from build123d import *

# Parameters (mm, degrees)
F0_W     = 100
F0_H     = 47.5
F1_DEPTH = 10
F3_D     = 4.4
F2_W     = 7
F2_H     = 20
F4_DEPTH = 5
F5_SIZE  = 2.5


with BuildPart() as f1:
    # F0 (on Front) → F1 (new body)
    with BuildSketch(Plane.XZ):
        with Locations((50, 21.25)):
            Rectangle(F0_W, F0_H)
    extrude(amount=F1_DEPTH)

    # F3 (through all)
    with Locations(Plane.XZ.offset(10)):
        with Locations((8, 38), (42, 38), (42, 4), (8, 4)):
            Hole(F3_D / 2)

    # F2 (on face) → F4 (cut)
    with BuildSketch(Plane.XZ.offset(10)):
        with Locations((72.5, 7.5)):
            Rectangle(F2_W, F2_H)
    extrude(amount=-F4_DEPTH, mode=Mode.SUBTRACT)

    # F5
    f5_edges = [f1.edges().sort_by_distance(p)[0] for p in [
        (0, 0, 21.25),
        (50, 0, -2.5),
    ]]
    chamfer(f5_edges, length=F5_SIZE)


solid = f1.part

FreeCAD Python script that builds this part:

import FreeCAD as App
import Part
import Sketcher
Q = App.Units.Quantity


def edges_at(feature, points):
    """Names of the edges that pass closest to the given points."""
    edges = feature.Shape.Edges
    near = lambda p: min(range(len(edges)), key=lambda i: edges[i].distToShape(Part.Vertex(*p))[0])
    return sorted({f"Edge{near(p) + 1}" for p in points})


def add_polygon(sketch, points):
    """Adds a closed chain of lines whose ends are joined by coincident constraints."""
    first, n = sketch.GeometryCount, len(points)
    for a, b in zip(points, points[1:] + points[:1]):
        sketch.addGeometry(Part.LineSegment(App.Vector(*a, 0), App.Vector(*b, 0)), False)
    for i in range(n):
        sketch.addConstraint(Sketcher.Constraint("Coincident", first + i, 2, first + (i + 1) % n, 1))

doc = App.newDocument("Part")
body = doc.addObject("PartDesign::Body", "Body")

# Sketch on XZ plane
sketch1 = body.newObject("Sketcher::SketchObject", "Sketch")
sketch1.AttachmentSupport = (doc.getObject("XZ_Plane"), [""])
sketch1.MapMode = "FlatFace"
add_polygon(sketch1, [(0, 45), (0, -2.5), (100, -2.5), (100, 45)])  # lines 0-3
sketch1.addConstraint(Sketcher.Constraint("Vertical", 0))
sketch1.addConstraint(Sketcher.Constraint("Horizontal", 1))
sketch1.addConstraint(Sketcher.Constraint("Vertical", 2))
sketch1.addConstraint(Sketcher.Constraint("Horizontal", 3))
sketch1.addConstraint(Sketcher.Constraint("PointOnObject", 0, 2, -2))
sketch1.addConstraint(Sketcher.Constraint("DistanceX", 1, 1, 1, 2, Q("100 mm")))
sketch1.addConstraint(Sketcher.Constraint("DistanceY", 0, 2, 0, 1, Q("47.5 mm")))
sketch1.addConstraint(Sketcher.Constraint("DistanceY", -1, 1, 2, 2, Q("45 mm")))
pad1 = body.newObject("PartDesign::Pad", "Pad")
pad1.Profile = sketch1
pad1.Length = 10

# Sketch on XZ plane
sketch2 = body.newObject("Sketcher::SketchObject", "Sketch001")
sketch2.AttachmentSupport = (doc.getObject("XZ_Plane"), [""])
sketch2.MapMode = "FlatFace"
sketch2.AttachmentOffset = App.Placement(App.Vector(0, 0, 10), App.Rotation())
sketch2.addGeometry(Part.Circle(App.Vector(8, 38, 0), App.Vector(0, 0, 1), 2.2), False)
sketch2.addGeometry(Part.Circle(App.Vector(42, 38, 0), App.Vector(0, 0, 1), 2.2), False)
sketch2.addGeometry(Part.Circle(App.Vector(42, 4, 0), App.Vector(0, 0, 1), 2.2), False)
sketch2.addGeometry(Part.Circle(App.Vector(8, 4, 0), App.Vector(0, 0, 1), 2.2), False)
sketch2.addConstraint(Sketcher.Constraint("Equal", 0, 1))
sketch2.addConstraint(Sketcher.Constraint("Equal", 1, 2))
sketch2.addConstraint(Sketcher.Constraint("Equal", 2, 3))
sketch2.addConstraint(Sketcher.Constraint("Horizontal", 0, 3, 1, 3))
sketch2.addConstraint(Sketcher.Constraint("Horizontal", 2, 3, 3, 3))
sketch2.addConstraint(Sketcher.Constraint("Vertical", 1, 3, 2, 3))
sketch2.addConstraint(Sketcher.Constraint("Vertical", 0, 3, 3, 3))
sketch2.addConstraint(Sketcher.Constraint("Diameter", 0, Q("4.4 mm")))
sketch2.addConstraint(Sketcher.Constraint("DistanceX", -1, 1, 0, 3, Q("8 mm")))
sketch2.addConstraint(Sketcher.Constraint("DistanceY", -1, 1, 0, 3, Q("38 mm")))
sketch2.addConstraint(Sketcher.Constraint("DistanceX", -1, 1, 1, 3, Q("42 mm")))
sketch2.addConstraint(Sketcher.Constraint("DistanceY", -1, 1, 2, 3, Q("4 mm")))
doc.recompute()
hole = body.newObject("PartDesign::Hole", "Hole")
hole.Profile = sketch2
hole.ThreadType = "None"
hole.Diameter = 4.4
hole.DepthType = "ThroughAll"

# Sketch on XZ plane
sketch3 = body.newObject("Sketcher::SketchObject", "Sketch002")
sketch3.AttachmentSupport = (doc.getObject("XZ_Plane"), [""])
sketch3.MapMode = "FlatFace"
sketch3.AttachmentOffset = App.Placement(App.Vector(0, 0, 10), App.Rotation())
add_polygon(sketch3, [(69, 17.5), (69, -2.5), (76, -2.5), (76, 17.5)])  # lines 0-3
sketch3.addConstraint(Sketcher.Constraint("Vertical", 0))
sketch3.addConstraint(Sketcher.Constraint("Horizontal", 1))
sketch3.addConstraint(Sketcher.Constraint("Vertical", 2))
sketch3.addConstraint(Sketcher.Constraint("Horizontal", 3))
sketch3.addConstraint(Sketcher.Constraint("DistanceX", 1, 1, 1, 2, Q("7 mm")))
sketch3.addConstraint(Sketcher.Constraint("DistanceY", 0, 2, 0, 1, Q("20 mm")))
sketch3.addConstraint(Sketcher.Constraint("DistanceX", -1, 1, 0, 2, Q("69 mm")))
sketch3.addConstraint(Sketcher.Constraint("DistanceY", 0, 2, -1, 1, Q("2.5 mm")))
pocket1 = body.newObject("PartDesign::Pocket", "Pocket")
pocket1.Profile = sketch3
pocket1.Length = 5
doc.recompute()

chamfer = body.newObject("PartDesign::Chamfer", "Chamfer")
chamfer.Base = (pocket1, edges_at(pocket1, [(0, 0, 21.25), (50, 0, -2.5)]))
chamfer.Size = 2.5

doc.recompute()
